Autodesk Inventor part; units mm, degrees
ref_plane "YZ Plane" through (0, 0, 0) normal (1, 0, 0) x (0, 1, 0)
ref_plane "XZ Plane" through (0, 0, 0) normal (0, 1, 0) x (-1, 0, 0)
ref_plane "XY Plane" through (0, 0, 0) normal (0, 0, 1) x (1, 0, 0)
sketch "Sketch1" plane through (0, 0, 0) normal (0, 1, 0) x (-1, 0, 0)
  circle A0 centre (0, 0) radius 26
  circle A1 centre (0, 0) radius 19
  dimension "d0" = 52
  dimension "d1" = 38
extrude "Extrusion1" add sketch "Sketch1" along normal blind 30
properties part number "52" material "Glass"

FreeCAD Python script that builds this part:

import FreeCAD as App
import Part
import Sketcher

V = App.Vector
Q = App.Units.Quantity

doc = App.newDocument("Part")
body = doc.addObject("PartDesign::Body", "Body")

# Sketch on XZ plane
sketch1 = body.newObject("Sketcher::SketchObject", "Sketch")
sketch1.AttachmentSupport = (doc.getObject("XZ_Plane"), [""])
sketch1.MapMode = "FlatFace"
sketch1.addGeometry([
    Part.Circle(V(0, 0, 0), V(0, 0, 1), 26),
    Part.Circle(V(0, 0, 0), V(0, 0, 1), 19),
], False)
sketch1.addConstraint([
    Sketcher.Constraint("Coincident", 0, 3, -1, 1),
    Sketcher.Constraint("Coincident", 1, 3, -1, 1),
    Sketcher.Constraint("Diameter", 0, Q("52 mm")),
    Sketcher.Constraint("Diameter", 1, Q("38 mm")),
])
pad1 = body.newObject("PartDesign::Pad", "Pad")
pad1.Profile = sketch1
pad1.Length = 30
pad1.Reversed = True

doc.recompute()
